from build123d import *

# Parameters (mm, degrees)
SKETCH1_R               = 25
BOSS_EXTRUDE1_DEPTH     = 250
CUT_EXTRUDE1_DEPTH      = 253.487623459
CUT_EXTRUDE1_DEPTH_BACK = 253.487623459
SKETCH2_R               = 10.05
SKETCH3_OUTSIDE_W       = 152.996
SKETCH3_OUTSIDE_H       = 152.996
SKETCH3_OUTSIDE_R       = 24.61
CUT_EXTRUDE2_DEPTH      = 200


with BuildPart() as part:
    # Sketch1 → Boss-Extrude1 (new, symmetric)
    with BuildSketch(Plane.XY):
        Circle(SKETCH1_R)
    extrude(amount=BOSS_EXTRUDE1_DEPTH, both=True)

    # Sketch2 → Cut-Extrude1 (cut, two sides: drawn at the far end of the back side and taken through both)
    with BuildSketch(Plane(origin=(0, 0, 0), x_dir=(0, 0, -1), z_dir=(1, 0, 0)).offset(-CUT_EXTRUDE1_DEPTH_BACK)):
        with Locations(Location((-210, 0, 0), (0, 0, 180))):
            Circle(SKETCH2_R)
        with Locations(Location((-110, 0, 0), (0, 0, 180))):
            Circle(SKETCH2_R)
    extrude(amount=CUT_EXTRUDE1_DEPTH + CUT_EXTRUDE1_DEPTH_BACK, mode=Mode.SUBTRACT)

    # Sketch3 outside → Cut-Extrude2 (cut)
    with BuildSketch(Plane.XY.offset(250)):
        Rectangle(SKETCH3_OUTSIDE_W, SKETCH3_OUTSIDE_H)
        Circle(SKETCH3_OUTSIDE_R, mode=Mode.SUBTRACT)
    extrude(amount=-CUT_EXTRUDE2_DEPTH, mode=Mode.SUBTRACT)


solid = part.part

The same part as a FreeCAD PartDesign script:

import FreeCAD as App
import Part
import Sketcher


def add_polygon(sketch, points):
    """Adds a closed chain of lines whose ends are joined by coincident constraints."""
    first, n = sketch.GeometryCount, len(points)
    for a, b in zip(points, points[1:] + points[:1]):
        sketch.addGeometry(Part.LineSegment(App.Vector(*a, 0), App.Vector(*b, 0)), False)
    for i in range(n):
        sketch.addConstraint(Sketcher.Constraint("Coincident", first + i, 2, first + (i + 1) % n, 1))

doc = App.newDocument("Part")
body = doc.addObject("PartDesign::Body", "Body")

sketch1 = body.newObject("Sketcher::SketchObject", "Sketch")
sketch1.AttachmentSupport = (doc.getObject("XY_Plane"), [""])
sketch1.MapMode = "FlatFace"
sketch1.addGeometry(Part.Circle(App.Vector(0, 0, 0), App.Vector(0, 0, 1), 25), False)
sketch1.addConstraint(Sketcher.Constraint("Coincident", 0, 3, -1, 1))
sketch1.addConstraint(Sketcher.Constraint("Diameter", 0, 50.0))
pad1 = body.newObject("PartDesign::Pad", "Pad")
pad1.Profile = sketch1
pad1.Length = 500
pad1.Midplane = True

sketch2 = body.newObject("Sketcher::SketchObject", "Sketch001")
sketch2.AttachmentSupport = (doc.getObject("YZ_Plane"), [""])
sketch2.MapMode = "FlatFace"
sketch2.addGeometry(Part.Circle(App.Vector(0, 210, 0), App.Vector(0, 0, 1), 10), False)
sketch2.addGeometry(Part.Circle(App.Vector(0, 110, 0), App.Vector(0, 0, 1), 10), False)
sketch2.addConstraint(Sketcher.Constraint("Equal", 0, 1))
sketch2.addConstraint(Sketcher.Constraint("PointOnObject", 0, 3, -2))
sketch2.addConstraint(Sketcher.Constraint("PointOnObject", 1, 3, -2))
sketch2.addConstraint(Sketcher.Constraint("Diameter", 0, 20.1))
sketch2.addConstraint(Sketcher.Constraint("DistanceY", -1, 1, 0, 3, 210.0))
sketch2.addConstraint(Sketcher.Constraint("DistanceY", -1, 1, 1, 3, 110.0))
pocket1 = body.newObject("PartDesign::Pocket", "Pocket")
pocket1.Profile = sketch2
pocket1.Type = "ThroughAll"
pocket1.Midplane = True

sketch3 = body.newObject("Sketcher::SketchObject", "Sketch002")
sketch3.AttachmentSupport = (doc.getObject("XY_Plane"), [""])
sketch3.MapMode = "FlatFace"
sketch3.AttachmentOffset = App.Placement(App.Vector(0, 0, 250), App.Rotation())
add_polygon(sketch3, [(-76, 76), (-76, -76), (76, -76), (76, 76)])
sketch3.addGeometry(Part.Circle(App.Vector(0, 0, 0), App.Vector(0, 0, 1), 25), False)
sketch3.addConstraint(Sketcher.Constraint("Vertical", 0))
sketch3.addConstraint(Sketcher.Constraint("Horizontal", 1))
sketch3.addConstraint(Sketcher.Constraint("Vertical", 2))
sketch3.addConstraint(Sketcher.Constraint("Horizontal", 3))
sketch3.addConstraint(Sketcher.Constraint("Coincident", 4, 3, -1, 1))
sketch3.addConstraint(Sketcher.Constraint("Symmetric", 0, 2, 2, 2, -1, 1))
sketch3.addConstraint(Sketcher.Constraint("Equal", 3, 0))
sketch3.addConstraint(Sketcher.Constraint("Diameter", 4, 49.22))
sketch3.addConstraint(Sketcher.Constraint("DistanceX", 1, 1, 1, 2, 152.996))
pocket2 = body.newObject("PartDesign::Pocket", "Pocket001")
pocket2.Profile = sketch3
pocket2.Length = 200

doc.recompute()
